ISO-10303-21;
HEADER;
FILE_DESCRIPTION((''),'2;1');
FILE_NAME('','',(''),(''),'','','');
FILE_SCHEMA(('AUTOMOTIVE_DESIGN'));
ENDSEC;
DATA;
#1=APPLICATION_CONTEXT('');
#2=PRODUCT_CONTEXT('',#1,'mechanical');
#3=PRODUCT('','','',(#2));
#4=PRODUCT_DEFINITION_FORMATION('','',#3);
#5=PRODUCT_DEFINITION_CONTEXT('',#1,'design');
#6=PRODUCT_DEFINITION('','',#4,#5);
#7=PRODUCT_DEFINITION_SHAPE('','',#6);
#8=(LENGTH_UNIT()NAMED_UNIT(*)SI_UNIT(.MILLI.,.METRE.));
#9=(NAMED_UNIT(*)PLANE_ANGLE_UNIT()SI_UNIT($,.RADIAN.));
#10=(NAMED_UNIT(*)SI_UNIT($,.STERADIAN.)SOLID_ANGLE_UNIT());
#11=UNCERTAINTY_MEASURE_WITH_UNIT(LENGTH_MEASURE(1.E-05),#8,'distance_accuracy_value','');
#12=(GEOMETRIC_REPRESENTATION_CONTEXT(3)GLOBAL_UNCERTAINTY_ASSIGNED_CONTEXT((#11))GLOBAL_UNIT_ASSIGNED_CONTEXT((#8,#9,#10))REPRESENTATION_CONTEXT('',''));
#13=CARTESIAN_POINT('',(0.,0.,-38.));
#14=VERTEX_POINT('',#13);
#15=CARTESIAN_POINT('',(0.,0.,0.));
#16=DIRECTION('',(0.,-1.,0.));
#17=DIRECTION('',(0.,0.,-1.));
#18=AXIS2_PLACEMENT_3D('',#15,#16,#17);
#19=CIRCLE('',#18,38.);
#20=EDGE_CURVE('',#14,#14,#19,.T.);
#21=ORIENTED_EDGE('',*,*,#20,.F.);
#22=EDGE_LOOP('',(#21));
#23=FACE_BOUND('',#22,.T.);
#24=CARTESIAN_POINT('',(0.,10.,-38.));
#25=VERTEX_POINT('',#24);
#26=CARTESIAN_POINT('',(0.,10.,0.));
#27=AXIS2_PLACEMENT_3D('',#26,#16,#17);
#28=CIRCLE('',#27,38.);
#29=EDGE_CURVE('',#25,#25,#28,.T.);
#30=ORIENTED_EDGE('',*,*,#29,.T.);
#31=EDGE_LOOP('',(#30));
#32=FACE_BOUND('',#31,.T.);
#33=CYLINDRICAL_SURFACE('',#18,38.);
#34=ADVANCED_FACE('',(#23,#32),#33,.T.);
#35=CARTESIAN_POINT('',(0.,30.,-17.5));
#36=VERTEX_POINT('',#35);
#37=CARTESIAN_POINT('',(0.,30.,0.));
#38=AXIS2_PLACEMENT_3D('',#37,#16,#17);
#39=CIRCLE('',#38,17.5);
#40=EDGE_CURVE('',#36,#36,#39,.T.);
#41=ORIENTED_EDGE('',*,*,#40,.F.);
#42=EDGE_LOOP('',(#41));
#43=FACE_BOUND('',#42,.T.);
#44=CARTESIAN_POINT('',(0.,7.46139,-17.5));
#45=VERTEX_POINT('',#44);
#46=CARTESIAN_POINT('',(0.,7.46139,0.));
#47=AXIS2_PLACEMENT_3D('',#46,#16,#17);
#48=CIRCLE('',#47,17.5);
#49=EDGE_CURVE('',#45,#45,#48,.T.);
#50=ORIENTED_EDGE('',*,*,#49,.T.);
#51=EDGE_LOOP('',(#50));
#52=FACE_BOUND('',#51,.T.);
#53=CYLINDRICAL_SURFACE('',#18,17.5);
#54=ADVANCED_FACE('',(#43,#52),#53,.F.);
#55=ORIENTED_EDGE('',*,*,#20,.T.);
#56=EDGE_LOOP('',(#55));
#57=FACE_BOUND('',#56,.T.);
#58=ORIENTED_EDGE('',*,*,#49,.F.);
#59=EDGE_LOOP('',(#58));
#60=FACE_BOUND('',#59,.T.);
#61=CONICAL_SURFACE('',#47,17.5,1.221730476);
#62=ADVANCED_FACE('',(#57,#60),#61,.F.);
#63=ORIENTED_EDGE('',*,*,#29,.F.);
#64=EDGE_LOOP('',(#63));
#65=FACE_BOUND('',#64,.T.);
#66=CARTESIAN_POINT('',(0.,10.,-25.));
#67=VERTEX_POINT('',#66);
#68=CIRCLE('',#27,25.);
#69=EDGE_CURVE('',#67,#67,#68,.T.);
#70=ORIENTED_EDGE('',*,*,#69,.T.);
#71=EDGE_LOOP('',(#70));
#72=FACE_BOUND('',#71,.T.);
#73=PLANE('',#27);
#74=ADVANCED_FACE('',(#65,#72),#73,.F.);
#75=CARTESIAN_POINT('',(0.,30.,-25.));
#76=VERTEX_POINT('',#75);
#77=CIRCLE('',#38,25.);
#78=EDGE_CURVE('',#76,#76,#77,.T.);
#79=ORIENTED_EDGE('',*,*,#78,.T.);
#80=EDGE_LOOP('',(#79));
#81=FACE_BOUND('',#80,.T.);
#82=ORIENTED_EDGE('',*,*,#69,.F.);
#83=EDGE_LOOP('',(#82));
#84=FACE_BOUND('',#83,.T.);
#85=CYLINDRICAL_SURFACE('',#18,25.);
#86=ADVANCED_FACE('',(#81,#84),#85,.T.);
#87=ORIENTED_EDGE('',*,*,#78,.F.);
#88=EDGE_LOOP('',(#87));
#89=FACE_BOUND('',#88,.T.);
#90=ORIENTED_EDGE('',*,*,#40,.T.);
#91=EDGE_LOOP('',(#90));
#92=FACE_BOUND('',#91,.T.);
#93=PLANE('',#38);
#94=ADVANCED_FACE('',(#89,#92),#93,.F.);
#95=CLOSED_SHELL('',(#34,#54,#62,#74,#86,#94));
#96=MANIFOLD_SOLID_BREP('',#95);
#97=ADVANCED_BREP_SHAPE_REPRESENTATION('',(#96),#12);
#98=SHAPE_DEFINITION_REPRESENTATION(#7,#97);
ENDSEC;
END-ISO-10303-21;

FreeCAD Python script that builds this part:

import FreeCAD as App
import Part
import Sketcher
from FreeCAD import Vector
Q = App.Units.Quantity


def add_polygon(sketch, points):
    """Adds a closed chain of lines whose ends are joined by coincident constraints."""
    first, n = sketch.GeometryCount, len(points)
    for a, b in zip(points, points[1:] + points[:1]):
        sketch.addGeometry(Part.LineSegment(App.Vector(*a, 0), App.Vector(*b, 0)), False)
    for i in range(n):
        sketch.addConstraint(Sketcher.Constraint("Coincident", first + i, 2, first + (i + 1) % n, 1))

doc = App.newDocument("Part")
body = doc.addObject("PartDesign::Body", "Body")

sketch1 = body.newObject("Sketcher::SketchObject", "Sketch")
sketch1.AttachmentSupport = (doc.getObject("XY_Plane"), [""])
sketch1.MapMode = "FlatFace"
add_polygon(sketch1, [(18, 30), (18, 7), (38, 0), (38, 10), (25, 10), (25, 30)])
sketch1.addConstraint([
    Sketcher.Constraint("Vertical", 0),
    Sketcher.Constraint("Vertical", 2),
    Sketcher.Constraint("Horizontal", 3),
    Sketcher.Constraint("Vertical", 4),
    Sketcher.Constraint("Horizontal", 5),
    Sketcher.Constraint("PointOnObject", 1, 2, -1),
    Sketcher.Constraint("DistanceX", 3, 2, 3, 1, Q("13 mm")),
    Sketcher.Constraint("DistanceY", 2, 1, 2, 2, Q("10 mm")),
    Sketcher.Constraint("DistanceY", 4, 1, 4, 2, Q("20 mm")),
    Sketcher.Constraint("Angle", 1, Q("-20 deg")),
    Sketcher.Constraint("DistanceX", 5, 2, 5, 1, Q("7.5 mm")),
    Sketcher.Constraint("DistanceX", -1, 1, 1, 2, Q("38 mm")),
])
revolution = body.newObject("PartDesign::Revolution", "Revolution")
revolution.Profile = sketch1
revolution.ReferenceAxis = (sketch1, ["V_Axis"])
revolution.Angle = 360

doc.recompute()
